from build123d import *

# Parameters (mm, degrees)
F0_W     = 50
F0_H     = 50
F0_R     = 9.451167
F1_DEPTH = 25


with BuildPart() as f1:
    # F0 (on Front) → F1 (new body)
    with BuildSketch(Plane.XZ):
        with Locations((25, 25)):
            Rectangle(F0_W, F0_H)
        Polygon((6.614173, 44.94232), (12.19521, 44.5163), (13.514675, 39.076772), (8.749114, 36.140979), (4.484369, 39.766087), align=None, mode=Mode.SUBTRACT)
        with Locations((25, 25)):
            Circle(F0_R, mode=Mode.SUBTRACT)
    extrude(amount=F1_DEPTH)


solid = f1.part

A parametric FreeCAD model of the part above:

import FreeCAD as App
import Part
import Sketcher
from FreeCAD import Vector
Q = App.Units.Quantity

doc = App.newDocument("Part")
body = doc.addObject("PartDesign::Body", "Body")

sketch1 = body.newObject("Sketcher::SketchObject", "Sketch")
sketch1.AttachmentSupport = (doc.getObject("XZ_Plane"), [""])
sketch1.MapMode = "FlatFace"
sketch1.addGeometry(Part.LineSegment(Vector(0, 50, 0), Vector(0, 0, 0)), False)
sketch1.addGeometry(Part.LineSegment(Vector(0, 0, 0), Vector(50, 0, 0)), False)
sketch1.addGeometry(Part.LineSegment(Vector(50, 0, 0), Vector(50, 50, 0)), False)
sketch1.addGeometry(Part.LineSegment(Vector(50, 50, 0), Vector(0, 50, 0)), False)
sketch1.addGeometry(Part.Circle(Vector(25, 25, 0), Vector(0, 0, 1), 9.451167), False)
sketch1.addGeometry(Part.LineSegment(Vector(4.484369, 39.766087, 0), Vector(6.614173, 44.94232, 0)), False)
sketch1.addGeometry(Part.LineSegment(Vector(6.614173, 44.94232, 0), Vector(12.19521, 44.5163, 0)), False)
sketch1.addGeometry(Part.LineSegment(Vector(12.19521, 44.5163, 0), Vector(13.514675, 39.076772, 0)), False)
sketch1.addGeometry(Part.LineSegment(Vector(13.514675, 39.076772, 0), Vector(8.749114, 36.140979, 0)), False)
sketch1.addGeometry(Part.LineSegment(Vector(8.749114, 36.140979, 0), Vector(4.484369, 39.766087, 0)), False)
sketch1.addConstraint(Sketcher.Constraint("Coincident", 0, 2, 1, 1))
sketch1.addConstraint(Sketcher.Constraint("Coincident", 1, 2, 2, 1))
sketch1.addConstraint(Sketcher.Constraint("Coincident", 2, 2, 3, 1))
sketch1.addConstraint(Sketcher.Constraint("Coincident", 3, 2, 0, 1))
sketch1.addConstraint(Sketcher.Constraint("Coincident", 5, 2, 6, 1))
sketch1.addConstraint(Sketcher.Constraint("Coincident", 6, 2, 7, 1))
sketch1.addConstraint(Sketcher.Constraint("Coincident", 7, 2, 8, 1))
sketch1.addConstraint(Sketcher.Constraint("Coincident", 8, 2, 9, 1))
sketch1.addConstraint(Sketcher.Constraint("Coincident", 9, 2, 5, 1))
sketch1.addConstraint(Sketcher.Constraint("Vertical", 0))
sketch1.addConstraint(Sketcher.Constraint("Horizontal", 1))
sketch1.addConstraint(Sketcher.Constraint("Vertical", 2))
sketch1.addConstraint(Sketcher.Constraint("Horizontal", 3))
sketch1.addConstraint(Sketcher.Constraint("Coincident", 0, 2, -1, 1))
sketch1.addConstraint(Sketcher.Constraint("Equal", 3, 0))
sketch1.addConstraint(Sketcher.Constraint("Equal", 5, 6))
sketch1.addConstraint(Sketcher.Constraint("Equal", 6, 7))
sketch1.addConstraint(Sketcher.Constraint("Equal", 7, 8))
sketch1.addConstraint(Sketcher.Constraint("Equal", 8, 9))
sketch1.addConstraint(Sketcher.Constraint("DistanceX", 1, 1, 1, 2, Q("50 mm")))
sketch1.addConstraint(Sketcher.Constraint("DistanceX", -1, 1, 4, 3, Q("25 mm")))
sketch1.addConstraint(Sketcher.Constraint("DistanceY", -1, 1, 4, 3, Q("25 mm")))
sketch1.addConstraint(Sketcher.Constraint("Diameter", 4, Q("18.902334 mm")))
sketch1.addConstraint(Sketcher.Constraint("DistanceY", -1, 1, 6, 2, Q("44.5163 mm")))
sketch1.addConstraint(Sketcher.Constraint("Distance", 5, Q("5.597272 mm")))
sketch1.addConstraint(Sketcher.Constraint("DistanceY", -1, 1, 5, 2, Q("44.94232 mm")))
sketch1.addConstraint(Sketcher.Constraint("DistanceX", -1, 1, 6, 2, Q("12.19521 mm")))
sketch1.addConstraint(Sketcher.Constraint("DistanceY", -1, 1, 7, 2, Q("39.076772 mm")))
sketch1.addConstraint(Sketcher.Constraint("DistanceY", -1, 1, 8, 2, Q("36.140979 mm")))
pad1 = body.newObject("PartDesign::Pad", "Pad")
pad1.Profile = sketch1
pad1.Length = 25

doc.recompute()
